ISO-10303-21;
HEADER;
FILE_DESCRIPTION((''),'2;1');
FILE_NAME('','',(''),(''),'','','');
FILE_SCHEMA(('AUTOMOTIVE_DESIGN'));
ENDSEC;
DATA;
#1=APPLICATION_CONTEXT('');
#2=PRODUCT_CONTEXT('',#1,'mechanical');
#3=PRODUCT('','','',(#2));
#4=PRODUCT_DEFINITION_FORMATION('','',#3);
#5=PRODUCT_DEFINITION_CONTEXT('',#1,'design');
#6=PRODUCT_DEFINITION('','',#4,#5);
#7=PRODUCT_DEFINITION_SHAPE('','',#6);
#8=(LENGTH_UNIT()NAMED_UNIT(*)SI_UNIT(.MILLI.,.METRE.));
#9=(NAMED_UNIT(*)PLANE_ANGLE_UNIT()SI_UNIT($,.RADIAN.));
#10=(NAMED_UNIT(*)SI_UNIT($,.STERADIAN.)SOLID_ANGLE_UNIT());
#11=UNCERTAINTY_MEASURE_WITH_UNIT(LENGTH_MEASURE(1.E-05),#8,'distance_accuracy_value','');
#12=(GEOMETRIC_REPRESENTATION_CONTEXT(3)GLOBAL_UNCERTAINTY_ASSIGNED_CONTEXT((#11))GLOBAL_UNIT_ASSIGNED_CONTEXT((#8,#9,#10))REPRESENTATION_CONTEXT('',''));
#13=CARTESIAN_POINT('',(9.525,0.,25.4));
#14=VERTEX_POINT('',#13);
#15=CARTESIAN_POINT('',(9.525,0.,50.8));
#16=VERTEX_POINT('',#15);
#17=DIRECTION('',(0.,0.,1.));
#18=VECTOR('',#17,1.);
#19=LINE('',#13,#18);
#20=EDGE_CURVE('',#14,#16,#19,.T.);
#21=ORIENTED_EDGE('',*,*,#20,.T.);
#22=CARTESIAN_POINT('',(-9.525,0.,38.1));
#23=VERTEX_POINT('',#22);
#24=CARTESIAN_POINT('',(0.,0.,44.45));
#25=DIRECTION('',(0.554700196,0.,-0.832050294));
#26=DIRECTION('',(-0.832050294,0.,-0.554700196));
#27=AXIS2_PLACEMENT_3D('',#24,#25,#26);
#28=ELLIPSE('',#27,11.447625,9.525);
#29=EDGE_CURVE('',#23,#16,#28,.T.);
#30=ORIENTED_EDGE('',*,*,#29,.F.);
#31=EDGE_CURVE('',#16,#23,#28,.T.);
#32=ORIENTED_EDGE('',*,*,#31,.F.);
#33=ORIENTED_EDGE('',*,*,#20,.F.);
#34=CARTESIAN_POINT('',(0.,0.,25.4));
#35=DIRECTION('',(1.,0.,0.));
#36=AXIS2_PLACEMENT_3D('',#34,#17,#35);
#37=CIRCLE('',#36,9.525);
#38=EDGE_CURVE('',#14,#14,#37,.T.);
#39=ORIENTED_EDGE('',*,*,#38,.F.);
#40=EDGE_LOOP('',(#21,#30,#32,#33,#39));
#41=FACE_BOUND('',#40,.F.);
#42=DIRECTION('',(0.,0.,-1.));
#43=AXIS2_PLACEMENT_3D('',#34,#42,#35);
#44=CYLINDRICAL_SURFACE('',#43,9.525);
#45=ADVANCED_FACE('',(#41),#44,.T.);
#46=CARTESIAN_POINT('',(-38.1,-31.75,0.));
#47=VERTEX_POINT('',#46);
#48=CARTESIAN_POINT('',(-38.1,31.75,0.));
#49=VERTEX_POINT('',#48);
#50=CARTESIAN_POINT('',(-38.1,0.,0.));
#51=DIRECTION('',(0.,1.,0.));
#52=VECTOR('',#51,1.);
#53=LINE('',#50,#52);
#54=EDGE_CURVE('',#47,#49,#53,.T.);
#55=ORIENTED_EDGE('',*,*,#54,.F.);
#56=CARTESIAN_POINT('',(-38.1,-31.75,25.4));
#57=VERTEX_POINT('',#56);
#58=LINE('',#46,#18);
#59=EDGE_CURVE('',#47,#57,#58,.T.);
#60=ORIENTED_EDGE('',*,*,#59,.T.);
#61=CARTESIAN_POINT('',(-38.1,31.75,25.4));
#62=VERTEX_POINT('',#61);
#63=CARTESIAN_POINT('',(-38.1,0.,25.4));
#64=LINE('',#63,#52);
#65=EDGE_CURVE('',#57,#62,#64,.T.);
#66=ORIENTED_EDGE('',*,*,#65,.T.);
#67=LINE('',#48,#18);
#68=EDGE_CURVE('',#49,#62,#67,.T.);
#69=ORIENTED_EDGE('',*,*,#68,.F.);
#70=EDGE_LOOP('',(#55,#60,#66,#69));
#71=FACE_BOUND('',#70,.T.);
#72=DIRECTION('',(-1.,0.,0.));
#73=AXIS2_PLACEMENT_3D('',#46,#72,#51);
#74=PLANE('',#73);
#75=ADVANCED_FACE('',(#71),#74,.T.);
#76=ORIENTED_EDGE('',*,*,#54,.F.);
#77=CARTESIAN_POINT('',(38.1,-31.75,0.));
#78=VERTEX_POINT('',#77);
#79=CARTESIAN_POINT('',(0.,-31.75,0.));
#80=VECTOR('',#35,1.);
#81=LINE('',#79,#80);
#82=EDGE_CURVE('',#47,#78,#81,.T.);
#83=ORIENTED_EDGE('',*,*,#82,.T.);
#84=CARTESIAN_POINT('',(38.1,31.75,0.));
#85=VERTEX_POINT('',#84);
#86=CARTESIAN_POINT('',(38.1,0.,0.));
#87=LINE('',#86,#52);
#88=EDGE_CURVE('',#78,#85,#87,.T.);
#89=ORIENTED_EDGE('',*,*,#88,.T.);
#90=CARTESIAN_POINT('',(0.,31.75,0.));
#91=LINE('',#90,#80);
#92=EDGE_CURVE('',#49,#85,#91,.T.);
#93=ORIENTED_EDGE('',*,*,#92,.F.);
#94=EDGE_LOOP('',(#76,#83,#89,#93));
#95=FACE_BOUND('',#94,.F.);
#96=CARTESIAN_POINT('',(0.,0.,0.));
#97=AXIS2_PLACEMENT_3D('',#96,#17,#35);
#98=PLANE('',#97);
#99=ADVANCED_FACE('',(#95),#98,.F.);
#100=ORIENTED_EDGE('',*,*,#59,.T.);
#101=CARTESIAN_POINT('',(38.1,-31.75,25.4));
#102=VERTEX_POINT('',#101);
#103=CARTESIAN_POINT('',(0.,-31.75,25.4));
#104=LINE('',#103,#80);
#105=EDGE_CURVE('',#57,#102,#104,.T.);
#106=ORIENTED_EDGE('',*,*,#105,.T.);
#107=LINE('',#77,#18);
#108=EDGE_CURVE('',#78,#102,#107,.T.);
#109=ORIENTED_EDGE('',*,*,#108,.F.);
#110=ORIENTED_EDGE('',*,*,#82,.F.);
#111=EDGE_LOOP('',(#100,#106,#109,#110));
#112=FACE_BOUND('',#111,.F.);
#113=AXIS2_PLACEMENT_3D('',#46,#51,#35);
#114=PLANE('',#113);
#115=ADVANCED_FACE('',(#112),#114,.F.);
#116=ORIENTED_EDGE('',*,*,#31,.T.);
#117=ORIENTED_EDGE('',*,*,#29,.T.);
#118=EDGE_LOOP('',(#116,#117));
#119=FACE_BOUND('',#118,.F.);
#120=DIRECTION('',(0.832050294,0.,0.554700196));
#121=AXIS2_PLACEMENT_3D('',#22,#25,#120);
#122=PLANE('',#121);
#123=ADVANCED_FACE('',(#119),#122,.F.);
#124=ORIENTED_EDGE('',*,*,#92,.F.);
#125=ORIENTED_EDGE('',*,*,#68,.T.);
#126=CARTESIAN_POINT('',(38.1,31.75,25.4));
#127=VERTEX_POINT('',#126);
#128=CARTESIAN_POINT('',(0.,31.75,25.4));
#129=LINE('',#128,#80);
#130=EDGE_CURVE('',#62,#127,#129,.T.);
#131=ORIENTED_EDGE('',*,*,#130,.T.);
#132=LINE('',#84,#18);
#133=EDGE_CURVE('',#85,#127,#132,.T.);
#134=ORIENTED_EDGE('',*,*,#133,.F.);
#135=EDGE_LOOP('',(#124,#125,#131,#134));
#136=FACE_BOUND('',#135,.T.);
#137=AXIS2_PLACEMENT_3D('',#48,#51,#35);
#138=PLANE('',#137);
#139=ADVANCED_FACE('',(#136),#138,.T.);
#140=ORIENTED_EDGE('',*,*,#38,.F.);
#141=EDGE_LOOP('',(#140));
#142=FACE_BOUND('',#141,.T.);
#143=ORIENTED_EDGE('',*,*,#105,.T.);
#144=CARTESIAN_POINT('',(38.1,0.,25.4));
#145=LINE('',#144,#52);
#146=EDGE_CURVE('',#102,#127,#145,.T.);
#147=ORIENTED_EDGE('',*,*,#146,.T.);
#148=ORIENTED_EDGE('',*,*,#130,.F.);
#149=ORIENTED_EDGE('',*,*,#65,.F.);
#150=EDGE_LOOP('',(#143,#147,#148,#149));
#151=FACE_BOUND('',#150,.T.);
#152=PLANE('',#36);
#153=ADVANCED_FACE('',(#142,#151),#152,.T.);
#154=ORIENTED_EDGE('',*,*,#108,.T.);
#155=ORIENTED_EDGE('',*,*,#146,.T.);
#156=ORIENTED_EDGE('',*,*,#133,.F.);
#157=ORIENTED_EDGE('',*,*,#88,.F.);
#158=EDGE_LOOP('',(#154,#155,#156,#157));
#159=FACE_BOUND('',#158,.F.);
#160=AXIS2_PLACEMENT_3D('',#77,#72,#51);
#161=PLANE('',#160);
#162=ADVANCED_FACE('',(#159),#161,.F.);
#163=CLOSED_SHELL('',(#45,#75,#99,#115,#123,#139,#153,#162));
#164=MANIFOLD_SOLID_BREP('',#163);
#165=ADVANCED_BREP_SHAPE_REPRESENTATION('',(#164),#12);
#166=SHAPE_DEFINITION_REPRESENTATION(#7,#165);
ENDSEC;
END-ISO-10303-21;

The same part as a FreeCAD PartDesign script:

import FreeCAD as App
import Part
import Sketcher

V = App.Vector
Q = App.Units.Quantity


def add_polygon(sketch, points):
    """Adds a closed chain of lines whose ends are joined by coincident constraints."""
    first, n = sketch.GeometryCount, len(points)
    for a, b in zip(points, points[1:] + points[:1]):
        sketch.addGeometry(Part.LineSegment(App.Vector(*a, 0), App.Vector(*b, 0)), False)
    for i in range(n):
        sketch.addConstraint(Sketcher.Constraint("Coincident", first + i, 2, first + (i + 1) % n, 1))

doc = App.newDocument("Part")
body = doc.addObject("PartDesign::Body", "Body")

# Sketch on XY plane
sketch1 = doc.addObject("Sketcher::SketchObject", "Sketch")
body.addObject(sketch1)
sketch1.AttachmentSupport = (doc.XY_Plane, [""])
sketch1.MapMode = "FlatFace"
add_polygon(sketch1, [(-38, 32), (-38, -32), (38, -32), (38, 32)])  # lines 0-3
sketch1.addConstraint(Sketcher.Constraint("Vertical", 0))
sketch1.addConstraint(Sketcher.Constraint("Horizontal", 1))
sketch1.addConstraint(Sketcher.Constraint("Vertical", 2))
sketch1.addConstraint(Sketcher.Constraint("Horizontal", 3))
sketch1.addConstraint(Sketcher.Constraint("Symmetric", 0, 2, 2, 2, -1, 1))
sketch1.addConstraint(Sketcher.Constraint("DistanceX", 1, 1, 1, 2, Q("3 in")))
sketch1.addConstraint(Sketcher.Constraint("DistanceY", 0, 2, 0, 1, Q("2.5 in")))
pad1 = doc.addObject("PartDesign::Pad", "Pad")
body.addObject(pad1)
pad1.Profile = sketch1
pad1.Length = Q("1 in")

# Sketch on XY plane
sketch2 = doc.addObject("Sketcher::SketchObject", "Sketch001")
body.addObject(sketch2)
sketch2.AttachmentSupport = (doc.XY_Plane, [""])
sketch2.MapMode = "FlatFace"
sketch2.AttachmentOffset = App.Placement(V(0, 0, 1 * 25.4), App.Rotation())
sketch2.addGeometry(Part.Circle(V(0, 0, 0), V(0, 0, 1), 10), False)
sketch2.addConstraint(Sketcher.Constraint("Coincident", 0, 3, -1, 1))
sketch2.addConstraint(Sketcher.Constraint("Diameter", 0, Q("0.75 in")))
pad2 = doc.addObject("PartDesign::Pad", "Pad001")
body.addObject(pad2)
pad2.Profile = sketch2
pad2.Length = Q("1 in")

# Sketch on XZ plane
sketch3 = doc.addObject("Sketcher::SketchObject", "Sketch002")
body.addObject(sketch3)
sketch3.AttachmentSupport = (doc.XZ_Plane, [""])
sketch3.MapMode = "FlatFace"
add_polygon(sketch3, [(10, 51), (-10, 51), (-10, 38)])  # lines 0-2
sketch3.addConstraint(Sketcher.Constraint("Horizontal", 0))
sketch3.addConstraint(Sketcher.Constraint("Vertical", 1))
sketch3.addConstraint(Sketcher.Constraint("DistanceY", 1, 2, 1, 1, Q("0.5 in")))
sketch3.addConstraint(Sketcher.Constraint("DistanceY", -1, 1, 0, 2, Q("2 in")))
sketch3.addConstraint(Sketcher.Constraint("DistanceX", 0, 2, 0, 1, Q("0.75 in")))
sketch3.addConstraint(Sketcher.Constraint("DistanceX", 0, 2, -1, 1, Q("0.375 in")))
pocket1 = doc.addObject("PartDesign::Pocket", "Pocket")
body.addObject(pocket1)
pocket1.Profile = sketch3
pocket1.Length = Q("1.5 in")
pocket1.Midplane = True

doc.recompute()
